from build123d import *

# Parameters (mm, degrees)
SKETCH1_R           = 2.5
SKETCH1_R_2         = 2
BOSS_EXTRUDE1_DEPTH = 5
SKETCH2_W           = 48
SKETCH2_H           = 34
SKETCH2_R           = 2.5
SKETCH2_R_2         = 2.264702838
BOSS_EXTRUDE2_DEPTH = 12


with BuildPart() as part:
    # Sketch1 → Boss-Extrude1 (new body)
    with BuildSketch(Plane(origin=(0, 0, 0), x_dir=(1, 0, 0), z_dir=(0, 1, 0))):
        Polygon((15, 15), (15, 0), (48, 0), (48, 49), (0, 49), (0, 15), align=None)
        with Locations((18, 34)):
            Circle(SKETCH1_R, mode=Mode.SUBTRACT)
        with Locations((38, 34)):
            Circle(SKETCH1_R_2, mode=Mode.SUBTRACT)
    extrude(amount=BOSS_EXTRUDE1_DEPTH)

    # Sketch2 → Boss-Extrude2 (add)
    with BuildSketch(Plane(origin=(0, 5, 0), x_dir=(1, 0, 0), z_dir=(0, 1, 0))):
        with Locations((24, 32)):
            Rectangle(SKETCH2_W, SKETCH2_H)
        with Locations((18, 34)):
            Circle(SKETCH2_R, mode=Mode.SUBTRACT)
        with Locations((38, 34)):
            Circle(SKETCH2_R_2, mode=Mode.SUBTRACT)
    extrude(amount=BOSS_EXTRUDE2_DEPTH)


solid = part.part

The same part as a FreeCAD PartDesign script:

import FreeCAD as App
import Part
import Sketcher

V = App.Vector


def add_polygon(sketch, points):
    """Adds a closed chain of lines whose ends are joined by coincident constraints."""
    first, n = sketch.GeometryCount, len(points)
    for a, b in zip(points, points[1:] + points[:1]):
        sketch.addGeometry(Part.LineSegment(App.Vector(*a, 0), App.Vector(*b, 0)), False)
    for i in range(n):
        sketch.addConstraint(Sketcher.Constraint("Coincident", first + i, 2, first + (i + 1) % n, 1))

doc = App.newDocument("Part")
params = doc.addObject("Spreadsheet::Sheet", "Params")
for row, (alias, value) in enumerate([
    ("sketch1_diameter", "5 mm"),
    ("sketch1_diameter2", "4 mm"),
    ("sketch1_width", "33 mm"),
    ("sketch1_width2", "48 mm"),
    ("sketch1_height", "49 mm"),
    ("pad1_length", "5 mm"),
    ("sketch2_diameter", "5 mm"),
    ("sketch2_width", "48 mm"),
    ("sketch2_height", "34 mm"),
    ("pad2_length", "12 mm"),
], start=1):
    params.set(f"A{row}", alias)
    params.set(f"B{row}", "=" + value)
    params.setAlias(f"B{row}", alias)

body = doc.addObject("PartDesign::Body", "Body")

# Sketch on XZ plane
sketch1 = body.newObject("Sketcher::SketchObject", "Sketch")
sketch1.AttachmentSupport = (doc.getObject("XZ_Plane"), [""])
sketch1.MapMode = "FlatFace"
add_polygon(sketch1, [(15, -15), (15, 0), (48, 0), (48, -49), (0, -49), (0, -15)])  # lines 0-5
sketch1.addGeometry(Part.Circle(V(18, -34, 0), V(0, 0, 1), 2.5), False)  # 6
sketch1.addGeometry(Part.Circle(V(38, -34, 0), V(0, 0, 1), 2), False)  # 7
sketch1.addConstraint(Sketcher.Constraint("Vertical", 0))
sketch1.addConstraint(Sketcher.Constraint("Horizontal", 1))
sketch1.addConstraint(Sketcher.Constraint("Vertical", 2))
sketch1.addConstraint(Sketcher.Constraint("Horizontal", 3))
sketch1.addConstraint(Sketcher.Constraint("Vertical", 4))
sketch1.addConstraint(Sketcher.Constraint("Horizontal", 5))
sketch1.addConstraint(Sketcher.Constraint("PointOnObject", 0, 2, -1))
sketch1.addConstraint(Sketcher.Constraint("PointOnObject", 3, 2, -2))
sketch1.addConstraint(Sketcher.Constraint("Horizontal", 6, 3, 7, 3))
sketch1.addConstraint(Sketcher.Constraint("Equal", 5, 0))
sketch1.addConstraint(Sketcher.Constraint("Diameter", 6, 5.0))
sketch1.addConstraint(Sketcher.Constraint("Diameter", 7, 4.0))
sketch1.addConstraint(Sketcher.Constraint("DistanceX", 1, 1, 1, 2, 33.0))
sketch1.addConstraint(Sketcher.Constraint("DistanceX", 3, 2, 3, 1, 48.0))
sketch1.addConstraint(Sketcher.Constraint("DistanceY", 2, 2, 2, 1, 49.0))
sketch1.addConstraint(Sketcher.Constraint("DistanceX", -1, 1, 6, 3, 18.0))
sketch1.addConstraint(Sketcher.Constraint("DistanceY", 6, 3, -1, 1, 34.0))
sketch1.addConstraint(Sketcher.Constraint("DistanceX", -1, 1, 7, 3, 38.0))
sketch1.setExpression("Constraints[16]", "Params.sketch1_diameter")
sketch1.setExpression("Constraints[17]", "Params.sketch1_diameter2")
sketch1.setExpression("Constraints[18]", "Params.sketch1_width")
sketch1.setExpression("Constraints[19]", "Params.sketch1_width2")
sketch1.setExpression("Constraints[20]", "Params.sketch1_height")
pad1 = body.newObject("PartDesign::Pad", "Pad")
pad1.Profile = sketch1
pad1.setExpression("Length", "Params.pad1_length")
pad1.Reversed = True

# Sketch on XZ plane
sketch2 = body.newObject("Sketcher::SketchObject", "Sketch001")
sketch2.AttachmentSupport = (doc.getObject("XZ_Plane"), [""])
sketch2.MapMode = "FlatFace"
sketch2.AttachmentOffset = App.Placement(V(0, 0, -5), App.Rotation())
add_polygon(sketch2, [(0, -49), (0, -15), (48, -15), (48, -49)])  # lines 0-3
sketch2.addGeometry(Part.Circle(V(18, -34, 0), V(0, 0, 1), 2.5), False)  # 4
sketch2.addGeometry(Part.Circle(V(38, -34, 0), V(0, 0, 1), 2.3), False)  # 5
sketch2.addConstraint(Sketcher.Constraint("Vertical", 0))
sketch2.addConstraint(Sketcher.Constraint("Horizontal", 1))
sketch2.addConstraint(Sketcher.Constraint("Vertical", 2))
sketch2.addConstraint(Sketcher.Constraint("Horizontal", 3))
sketch2.addConstraint(Sketcher.Constraint("PointOnObject", 0, 2, -2))
sketch2.addConstraint(Sketcher.Constraint("Horizontal", 4, 3, 5, 3))
sketch2.addConstraint(Sketcher.Constraint("Diameter", 4, 5.0))
sketch2.addConstraint(Sketcher.Constraint("DistanceX", 1, 1, 1, 2, 48.0))
sketch2.addConstraint(Sketcher.Constraint("DistanceY", 0, 1, 0, 2, 34.0))
sketch2.addConstraint(Sketcher.Constraint("DistanceX", -1, 1, 4, 3, 18.0))
sketch2.addConstraint(Sketcher.Constraint("DistanceY", 4, 3, -1, 1, 34.0))
sketch2.addConstraint(Sketcher.Constraint("DistanceX", -1, 1, 5, 3, 38.0))
sketch2.addConstraint(Sketcher.Constraint("DistanceY", 0, 2, -1, 1, 15.0))
sketch2.addConstraint(Sketcher.Constraint("Diameter", 5, 4.529406))
sketch2.setExpression("Constraints[10]", "Params.sketch2_diameter")
sketch2.setExpression("Constraints[11]", "Params.sketch2_width")
sketch2.setExpression("Constraints[12]", "Params.sketch2_height")
pad2 = body.newObject("PartDesign::Pad", "Pad001")
pad2.Profile = sketch2
pad2.setExpression("Length", "Params.pad2_length")
pad2.Reversed = True

doc.recompute()
